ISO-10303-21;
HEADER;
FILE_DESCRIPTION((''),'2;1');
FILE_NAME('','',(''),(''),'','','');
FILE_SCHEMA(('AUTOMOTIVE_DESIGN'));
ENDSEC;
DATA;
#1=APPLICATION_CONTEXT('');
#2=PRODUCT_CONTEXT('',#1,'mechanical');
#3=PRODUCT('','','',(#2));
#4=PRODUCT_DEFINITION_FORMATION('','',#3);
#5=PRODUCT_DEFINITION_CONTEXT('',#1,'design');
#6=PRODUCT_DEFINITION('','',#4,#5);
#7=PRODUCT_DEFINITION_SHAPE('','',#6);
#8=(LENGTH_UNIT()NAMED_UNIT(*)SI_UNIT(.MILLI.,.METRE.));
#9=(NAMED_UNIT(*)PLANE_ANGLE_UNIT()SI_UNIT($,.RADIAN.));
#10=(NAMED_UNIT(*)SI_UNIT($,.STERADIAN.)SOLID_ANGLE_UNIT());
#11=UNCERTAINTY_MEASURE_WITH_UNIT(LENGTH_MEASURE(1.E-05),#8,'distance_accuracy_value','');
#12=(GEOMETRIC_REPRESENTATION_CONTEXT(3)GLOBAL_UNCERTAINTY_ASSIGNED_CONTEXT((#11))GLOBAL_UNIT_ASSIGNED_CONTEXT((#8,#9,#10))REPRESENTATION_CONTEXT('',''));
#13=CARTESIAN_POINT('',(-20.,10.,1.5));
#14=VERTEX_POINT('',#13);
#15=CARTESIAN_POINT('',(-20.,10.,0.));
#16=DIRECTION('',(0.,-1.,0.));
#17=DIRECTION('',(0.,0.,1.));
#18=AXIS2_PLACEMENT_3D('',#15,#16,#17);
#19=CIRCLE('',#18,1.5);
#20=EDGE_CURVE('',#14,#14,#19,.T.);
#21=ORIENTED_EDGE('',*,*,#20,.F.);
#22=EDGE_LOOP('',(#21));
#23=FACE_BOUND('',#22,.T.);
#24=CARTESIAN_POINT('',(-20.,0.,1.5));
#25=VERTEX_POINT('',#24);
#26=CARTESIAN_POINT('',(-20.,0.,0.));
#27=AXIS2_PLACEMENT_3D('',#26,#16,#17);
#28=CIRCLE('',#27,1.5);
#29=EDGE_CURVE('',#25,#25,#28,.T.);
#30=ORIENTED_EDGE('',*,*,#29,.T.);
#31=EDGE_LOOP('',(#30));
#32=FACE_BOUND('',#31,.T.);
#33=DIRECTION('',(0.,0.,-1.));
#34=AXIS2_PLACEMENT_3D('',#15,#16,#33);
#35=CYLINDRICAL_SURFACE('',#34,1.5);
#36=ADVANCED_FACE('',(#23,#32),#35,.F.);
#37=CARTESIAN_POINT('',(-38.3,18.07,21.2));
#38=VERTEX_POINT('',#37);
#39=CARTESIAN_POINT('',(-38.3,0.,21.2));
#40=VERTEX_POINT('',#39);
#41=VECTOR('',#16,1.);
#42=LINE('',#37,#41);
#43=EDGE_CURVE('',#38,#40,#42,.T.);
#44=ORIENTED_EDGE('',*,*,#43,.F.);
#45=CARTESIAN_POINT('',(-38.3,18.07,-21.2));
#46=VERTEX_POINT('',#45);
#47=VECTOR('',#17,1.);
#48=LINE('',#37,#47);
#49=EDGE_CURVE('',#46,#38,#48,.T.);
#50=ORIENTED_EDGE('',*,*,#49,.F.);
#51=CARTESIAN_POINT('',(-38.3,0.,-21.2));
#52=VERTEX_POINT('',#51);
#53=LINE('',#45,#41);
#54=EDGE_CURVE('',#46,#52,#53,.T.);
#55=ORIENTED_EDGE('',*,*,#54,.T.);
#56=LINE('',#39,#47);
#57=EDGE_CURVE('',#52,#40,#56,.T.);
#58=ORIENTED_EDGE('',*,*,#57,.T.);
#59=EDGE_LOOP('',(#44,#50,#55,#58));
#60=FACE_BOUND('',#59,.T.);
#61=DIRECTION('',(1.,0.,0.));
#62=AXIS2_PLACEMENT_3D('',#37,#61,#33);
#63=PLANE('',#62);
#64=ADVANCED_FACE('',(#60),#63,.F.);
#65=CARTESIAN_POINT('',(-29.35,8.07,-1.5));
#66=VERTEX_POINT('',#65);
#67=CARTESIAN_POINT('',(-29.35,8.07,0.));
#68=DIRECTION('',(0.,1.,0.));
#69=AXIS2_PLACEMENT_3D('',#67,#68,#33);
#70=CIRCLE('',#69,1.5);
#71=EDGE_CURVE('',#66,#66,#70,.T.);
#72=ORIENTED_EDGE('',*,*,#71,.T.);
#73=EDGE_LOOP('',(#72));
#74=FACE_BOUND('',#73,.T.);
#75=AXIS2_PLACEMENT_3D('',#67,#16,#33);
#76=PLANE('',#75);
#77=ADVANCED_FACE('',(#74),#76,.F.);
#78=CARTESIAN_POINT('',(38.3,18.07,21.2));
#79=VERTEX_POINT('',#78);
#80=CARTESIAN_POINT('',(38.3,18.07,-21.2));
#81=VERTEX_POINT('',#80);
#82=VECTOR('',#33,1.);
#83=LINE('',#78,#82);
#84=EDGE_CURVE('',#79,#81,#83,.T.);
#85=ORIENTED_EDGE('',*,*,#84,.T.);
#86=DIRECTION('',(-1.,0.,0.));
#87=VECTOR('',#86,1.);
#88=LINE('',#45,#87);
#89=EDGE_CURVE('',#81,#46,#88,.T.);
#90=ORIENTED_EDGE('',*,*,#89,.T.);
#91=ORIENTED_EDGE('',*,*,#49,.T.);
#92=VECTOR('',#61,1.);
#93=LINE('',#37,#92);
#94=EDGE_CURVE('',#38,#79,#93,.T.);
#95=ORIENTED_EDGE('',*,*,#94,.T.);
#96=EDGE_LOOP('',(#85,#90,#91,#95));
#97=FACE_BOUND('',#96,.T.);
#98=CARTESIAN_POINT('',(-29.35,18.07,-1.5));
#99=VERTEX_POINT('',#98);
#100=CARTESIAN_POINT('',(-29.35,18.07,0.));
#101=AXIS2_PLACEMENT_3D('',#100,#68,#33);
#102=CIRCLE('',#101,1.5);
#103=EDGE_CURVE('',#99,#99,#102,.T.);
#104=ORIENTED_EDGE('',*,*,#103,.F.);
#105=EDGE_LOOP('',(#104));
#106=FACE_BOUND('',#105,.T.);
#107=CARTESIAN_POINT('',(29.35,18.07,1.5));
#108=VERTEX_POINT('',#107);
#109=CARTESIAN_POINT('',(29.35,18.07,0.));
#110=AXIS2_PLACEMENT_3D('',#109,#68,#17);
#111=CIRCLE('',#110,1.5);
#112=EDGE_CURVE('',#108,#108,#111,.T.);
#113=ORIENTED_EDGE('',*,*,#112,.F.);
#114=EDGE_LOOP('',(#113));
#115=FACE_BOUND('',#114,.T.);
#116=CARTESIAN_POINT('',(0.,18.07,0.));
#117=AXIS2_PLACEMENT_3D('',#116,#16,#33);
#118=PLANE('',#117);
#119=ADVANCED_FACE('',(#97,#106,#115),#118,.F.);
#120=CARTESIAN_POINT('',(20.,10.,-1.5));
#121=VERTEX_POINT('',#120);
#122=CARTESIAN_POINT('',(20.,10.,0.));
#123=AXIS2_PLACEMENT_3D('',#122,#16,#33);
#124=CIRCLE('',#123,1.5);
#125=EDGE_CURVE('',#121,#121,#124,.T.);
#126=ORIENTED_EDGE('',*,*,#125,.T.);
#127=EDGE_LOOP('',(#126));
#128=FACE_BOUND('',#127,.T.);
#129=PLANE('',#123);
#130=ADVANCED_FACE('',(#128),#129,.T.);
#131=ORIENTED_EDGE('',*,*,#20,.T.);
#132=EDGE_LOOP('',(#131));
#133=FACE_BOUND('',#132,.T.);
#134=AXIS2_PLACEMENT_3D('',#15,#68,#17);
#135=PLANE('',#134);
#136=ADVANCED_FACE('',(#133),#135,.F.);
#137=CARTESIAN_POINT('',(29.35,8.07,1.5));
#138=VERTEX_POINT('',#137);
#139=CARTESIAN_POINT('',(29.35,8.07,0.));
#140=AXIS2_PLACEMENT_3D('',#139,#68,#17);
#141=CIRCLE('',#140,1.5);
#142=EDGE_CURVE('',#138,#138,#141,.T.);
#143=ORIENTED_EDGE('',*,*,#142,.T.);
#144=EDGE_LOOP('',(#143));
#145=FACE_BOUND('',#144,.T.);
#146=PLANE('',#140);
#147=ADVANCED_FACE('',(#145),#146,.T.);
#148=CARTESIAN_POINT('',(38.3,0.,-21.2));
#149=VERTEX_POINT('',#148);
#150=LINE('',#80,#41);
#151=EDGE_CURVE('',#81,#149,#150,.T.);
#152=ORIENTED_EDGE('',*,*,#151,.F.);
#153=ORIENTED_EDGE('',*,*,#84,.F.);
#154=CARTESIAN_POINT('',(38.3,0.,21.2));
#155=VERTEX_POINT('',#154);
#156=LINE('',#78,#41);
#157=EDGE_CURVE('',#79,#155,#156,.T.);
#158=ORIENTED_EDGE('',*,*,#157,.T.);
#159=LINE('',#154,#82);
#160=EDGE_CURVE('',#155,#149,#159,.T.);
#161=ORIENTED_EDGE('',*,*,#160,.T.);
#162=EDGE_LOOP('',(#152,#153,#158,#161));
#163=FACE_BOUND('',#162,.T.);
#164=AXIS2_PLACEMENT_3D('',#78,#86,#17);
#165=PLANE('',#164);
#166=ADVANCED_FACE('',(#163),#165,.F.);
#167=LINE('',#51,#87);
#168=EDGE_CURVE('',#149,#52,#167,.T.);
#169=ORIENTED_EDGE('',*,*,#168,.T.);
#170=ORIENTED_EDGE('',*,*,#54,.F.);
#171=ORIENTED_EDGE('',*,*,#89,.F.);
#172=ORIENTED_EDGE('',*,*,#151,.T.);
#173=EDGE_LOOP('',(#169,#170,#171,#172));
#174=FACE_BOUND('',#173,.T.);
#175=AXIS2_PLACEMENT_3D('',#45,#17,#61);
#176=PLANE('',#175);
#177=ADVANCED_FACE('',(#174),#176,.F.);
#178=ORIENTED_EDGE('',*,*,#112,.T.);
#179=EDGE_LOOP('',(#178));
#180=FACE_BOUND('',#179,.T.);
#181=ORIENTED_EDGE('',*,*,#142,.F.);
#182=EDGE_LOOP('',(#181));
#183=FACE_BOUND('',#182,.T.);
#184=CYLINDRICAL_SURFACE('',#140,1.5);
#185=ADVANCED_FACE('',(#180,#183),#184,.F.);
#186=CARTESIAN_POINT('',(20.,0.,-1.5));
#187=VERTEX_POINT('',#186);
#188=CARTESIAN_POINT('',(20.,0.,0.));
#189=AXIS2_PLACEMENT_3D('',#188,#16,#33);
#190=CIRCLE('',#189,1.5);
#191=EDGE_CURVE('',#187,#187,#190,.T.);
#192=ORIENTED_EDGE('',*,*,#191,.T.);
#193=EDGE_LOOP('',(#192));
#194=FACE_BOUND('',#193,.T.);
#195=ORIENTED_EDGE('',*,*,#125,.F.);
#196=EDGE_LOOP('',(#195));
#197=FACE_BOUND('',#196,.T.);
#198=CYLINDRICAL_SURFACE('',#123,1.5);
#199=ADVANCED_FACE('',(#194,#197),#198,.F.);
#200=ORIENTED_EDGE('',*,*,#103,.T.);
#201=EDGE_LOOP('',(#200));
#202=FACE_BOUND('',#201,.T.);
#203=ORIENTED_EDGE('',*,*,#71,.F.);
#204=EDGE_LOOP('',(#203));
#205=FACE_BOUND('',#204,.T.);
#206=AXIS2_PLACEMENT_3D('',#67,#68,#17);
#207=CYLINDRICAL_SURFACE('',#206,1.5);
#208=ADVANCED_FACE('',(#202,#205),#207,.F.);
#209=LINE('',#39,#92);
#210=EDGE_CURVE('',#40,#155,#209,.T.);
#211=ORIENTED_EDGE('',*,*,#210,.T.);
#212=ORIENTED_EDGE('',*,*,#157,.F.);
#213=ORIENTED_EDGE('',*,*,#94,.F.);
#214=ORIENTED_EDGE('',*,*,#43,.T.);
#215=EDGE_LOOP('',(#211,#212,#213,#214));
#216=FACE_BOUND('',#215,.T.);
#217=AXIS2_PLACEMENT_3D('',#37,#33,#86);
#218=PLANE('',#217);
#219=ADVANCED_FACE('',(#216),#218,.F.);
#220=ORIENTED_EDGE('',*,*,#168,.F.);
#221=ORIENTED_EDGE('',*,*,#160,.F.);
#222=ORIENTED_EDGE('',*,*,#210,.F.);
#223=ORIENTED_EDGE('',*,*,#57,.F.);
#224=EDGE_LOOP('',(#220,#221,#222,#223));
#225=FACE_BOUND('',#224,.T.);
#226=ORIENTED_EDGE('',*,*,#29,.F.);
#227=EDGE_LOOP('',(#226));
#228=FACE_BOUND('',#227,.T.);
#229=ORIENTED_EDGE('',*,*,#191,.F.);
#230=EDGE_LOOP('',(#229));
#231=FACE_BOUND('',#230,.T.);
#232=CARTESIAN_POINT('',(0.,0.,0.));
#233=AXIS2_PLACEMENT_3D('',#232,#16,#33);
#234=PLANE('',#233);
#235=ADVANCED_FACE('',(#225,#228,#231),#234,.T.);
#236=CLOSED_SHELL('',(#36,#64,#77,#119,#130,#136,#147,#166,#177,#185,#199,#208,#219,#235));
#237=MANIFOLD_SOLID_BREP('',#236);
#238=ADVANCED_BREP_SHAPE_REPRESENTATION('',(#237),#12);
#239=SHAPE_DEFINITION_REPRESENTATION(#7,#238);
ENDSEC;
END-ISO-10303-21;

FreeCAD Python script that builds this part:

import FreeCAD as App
import Part
import Sketcher

doc = App.newDocument("Part")
params = doc.addObject("Spreadsheet::Sheet", "Params")
for row, (alias, value) in enumerate([
    ("sketch1_width", "76.6 mm"),
    ("sketch1_height", "42.4 mm"),
    ("pad1_length", "18.07 mm"),
    ("sketch2_diameter", "3 mm"),
    ("pocket1_length", "10 mm"),
    ("sketch3_diameter", "3 mm"),
    ("pocket2_length", "10 mm"),
], start=1):
    params.set(f"A{row}", alias)
    params.set(f"B{row}", "=" + value)
    params.setAlias(f"B{row}", alias)

body = doc.addObject("PartDesign::Body", "Body")

sketch1 = body.newObject("Sketcher::SketchObject", "Sketch")
sketch1.AttachmentSupport = (doc.getObject("XZ_Plane"), [""])
sketch1.MapMode = "FlatFace"
sketch1.addGeometry(Part.LineSegment(App.Vector(-38.3, -21.2, 0), App.Vector(-38.3, 21.2, 0)), False)
sketch1.addGeometry(Part.LineSegment(App.Vector(-38.3, 21.2, 0), App.Vector(38.3, 21.2, 0)), False)
sketch1.addGeometry(Part.LineSegment(App.Vector(38.3, 21.2, 0), App.Vector(38.3, -21.2, 0)), False)
sketch1.addGeometry(Part.LineSegment(App.Vector(38.3, -21.2, 0), App.Vector(-38.3, -21.2, 0)), False)
sketch1.addConstraint(Sketcher.Constraint("Coincident", 0, 2, 1, 1))
sketch1.addConstraint(Sketcher.Constraint("Coincident", 1, 2, 2, 1))
sketch1.addConstraint(Sketcher.Constraint("Coincident", 2, 2, 3, 1))
sketch1.addConstraint(Sketcher.Constraint("Coincident", 3, 2, 0, 1))
sketch1.addConstraint(Sketcher.Constraint("Vertical", 0))
sketch1.addConstraint(Sketcher.Constraint("Horizontal", 1))
sketch1.addConstraint(Sketcher.Constraint("Vertical", 2))
sketch1.addConstraint(Sketcher.Constraint("Horizontal", 3))
sketch1.addConstraint(Sketcher.Constraint("Symmetric", 0, 2, 2, 2, -1, 1))
sketch1.addConstraint(Sketcher.Constraint("DistanceX", 1, 1, 1, 2, 76.6))
sketch1.addConstraint(Sketcher.Constraint("DistanceY", 0, 1, 0, 2, 42.4))
sketch1.setExpression("Constraints[9]", "Params.sketch1_width")
sketch1.setExpression("Constraints[10]", "Params.sketch1_height")
pad1 = body.newObject("PartDesign::Pad", "Pad")
pad1.Profile = sketch1
pad1.setExpression("Length", "Params.pad1_length")
pad1.Reversed = True

sketch2 = body.newObject("Sketcher::SketchObject", "Sketch001")
sketch2.AttachmentSupport = (doc.getObject("XZ_Plane"), [""])
sketch2.MapMode = "FlatFace"
sketch2.AttachmentOffset = App.Placement(App.Vector(0, 0, -18.07), App.Rotation())
sketch2.addGeometry(Part.Circle(App.Vector(29.35, 0, 0), App.Vector(0, 0, 1), 1.5), False)
sketch2.addGeometry(Part.Circle(App.Vector(-29.35, 0, 0), App.Vector(0, 0, 1), 1.5), False)
sketch2.addConstraint(Sketcher.Constraint("Equal", 0, 1))
sketch2.addConstraint(Sketcher.Constraint("Symmetric", 0, 3, 1, 3, -1, 1))
sketch2.addConstraint(Sketcher.Constraint("PointOnObject", 0, 3, -1))
sketch2.addConstraint(Sketcher.Constraint("Diameter", 0, 3.0))
sketch2.addConstraint(Sketcher.Constraint("DistanceX", 1, 3, 0, 3, 58.7))
sketch2.setExpression("Constraints[3]", "Params.sketch2_diameter")
pocket1 = body.newObject("PartDesign::Pocket", "Pocket")
pocket1.Profile = sketch2
pocket1.setExpression("Length", "Params.pocket1_length")
pocket1.Reversed = True

sketch3 = body.newObject("Sketcher::SketchObject", "Sketch002")
sketch3.AttachmentSupport = (doc.getObject("XZ_Plane"), [""])
sketch3.MapMode = "FlatFace"
sketch3.addGeometry(Part.Circle(App.Vector(20, 0, 0), App.Vector(0, 0, 1), 1.5), False)
sketch3.addGeometry(Part.Circle(App.Vector(-20, 0, 0), App.Vector(0, 0, 1), 1.5), False)
sketch3.addConstraint(Sketcher.Constraint("Equal", 0, 1))
sketch3.addConstraint(Sketcher.Constraint("Symmetric", 0, 3, 1, 3, -1, 1))
sketch3.addConstraint(Sketcher.Constraint("PointOnObject", 0, 3, -1))
sketch3.addConstraint(Sketcher.Constraint("Diameter", 0, 3.0))
sketch3.addConstraint(Sketcher.Constraint("DistanceX", -1, 1, 0, 3, 20.0))
sketch3.setExpression("Constraints[3]", "Params.sketch3_diameter")
pocket2 = body.newObject("PartDesign::Pocket", "Pocket001")
pocket2.Profile = sketch3
pocket2.setExpression("Length", "Params.pocket2_length")

doc.recompute()
